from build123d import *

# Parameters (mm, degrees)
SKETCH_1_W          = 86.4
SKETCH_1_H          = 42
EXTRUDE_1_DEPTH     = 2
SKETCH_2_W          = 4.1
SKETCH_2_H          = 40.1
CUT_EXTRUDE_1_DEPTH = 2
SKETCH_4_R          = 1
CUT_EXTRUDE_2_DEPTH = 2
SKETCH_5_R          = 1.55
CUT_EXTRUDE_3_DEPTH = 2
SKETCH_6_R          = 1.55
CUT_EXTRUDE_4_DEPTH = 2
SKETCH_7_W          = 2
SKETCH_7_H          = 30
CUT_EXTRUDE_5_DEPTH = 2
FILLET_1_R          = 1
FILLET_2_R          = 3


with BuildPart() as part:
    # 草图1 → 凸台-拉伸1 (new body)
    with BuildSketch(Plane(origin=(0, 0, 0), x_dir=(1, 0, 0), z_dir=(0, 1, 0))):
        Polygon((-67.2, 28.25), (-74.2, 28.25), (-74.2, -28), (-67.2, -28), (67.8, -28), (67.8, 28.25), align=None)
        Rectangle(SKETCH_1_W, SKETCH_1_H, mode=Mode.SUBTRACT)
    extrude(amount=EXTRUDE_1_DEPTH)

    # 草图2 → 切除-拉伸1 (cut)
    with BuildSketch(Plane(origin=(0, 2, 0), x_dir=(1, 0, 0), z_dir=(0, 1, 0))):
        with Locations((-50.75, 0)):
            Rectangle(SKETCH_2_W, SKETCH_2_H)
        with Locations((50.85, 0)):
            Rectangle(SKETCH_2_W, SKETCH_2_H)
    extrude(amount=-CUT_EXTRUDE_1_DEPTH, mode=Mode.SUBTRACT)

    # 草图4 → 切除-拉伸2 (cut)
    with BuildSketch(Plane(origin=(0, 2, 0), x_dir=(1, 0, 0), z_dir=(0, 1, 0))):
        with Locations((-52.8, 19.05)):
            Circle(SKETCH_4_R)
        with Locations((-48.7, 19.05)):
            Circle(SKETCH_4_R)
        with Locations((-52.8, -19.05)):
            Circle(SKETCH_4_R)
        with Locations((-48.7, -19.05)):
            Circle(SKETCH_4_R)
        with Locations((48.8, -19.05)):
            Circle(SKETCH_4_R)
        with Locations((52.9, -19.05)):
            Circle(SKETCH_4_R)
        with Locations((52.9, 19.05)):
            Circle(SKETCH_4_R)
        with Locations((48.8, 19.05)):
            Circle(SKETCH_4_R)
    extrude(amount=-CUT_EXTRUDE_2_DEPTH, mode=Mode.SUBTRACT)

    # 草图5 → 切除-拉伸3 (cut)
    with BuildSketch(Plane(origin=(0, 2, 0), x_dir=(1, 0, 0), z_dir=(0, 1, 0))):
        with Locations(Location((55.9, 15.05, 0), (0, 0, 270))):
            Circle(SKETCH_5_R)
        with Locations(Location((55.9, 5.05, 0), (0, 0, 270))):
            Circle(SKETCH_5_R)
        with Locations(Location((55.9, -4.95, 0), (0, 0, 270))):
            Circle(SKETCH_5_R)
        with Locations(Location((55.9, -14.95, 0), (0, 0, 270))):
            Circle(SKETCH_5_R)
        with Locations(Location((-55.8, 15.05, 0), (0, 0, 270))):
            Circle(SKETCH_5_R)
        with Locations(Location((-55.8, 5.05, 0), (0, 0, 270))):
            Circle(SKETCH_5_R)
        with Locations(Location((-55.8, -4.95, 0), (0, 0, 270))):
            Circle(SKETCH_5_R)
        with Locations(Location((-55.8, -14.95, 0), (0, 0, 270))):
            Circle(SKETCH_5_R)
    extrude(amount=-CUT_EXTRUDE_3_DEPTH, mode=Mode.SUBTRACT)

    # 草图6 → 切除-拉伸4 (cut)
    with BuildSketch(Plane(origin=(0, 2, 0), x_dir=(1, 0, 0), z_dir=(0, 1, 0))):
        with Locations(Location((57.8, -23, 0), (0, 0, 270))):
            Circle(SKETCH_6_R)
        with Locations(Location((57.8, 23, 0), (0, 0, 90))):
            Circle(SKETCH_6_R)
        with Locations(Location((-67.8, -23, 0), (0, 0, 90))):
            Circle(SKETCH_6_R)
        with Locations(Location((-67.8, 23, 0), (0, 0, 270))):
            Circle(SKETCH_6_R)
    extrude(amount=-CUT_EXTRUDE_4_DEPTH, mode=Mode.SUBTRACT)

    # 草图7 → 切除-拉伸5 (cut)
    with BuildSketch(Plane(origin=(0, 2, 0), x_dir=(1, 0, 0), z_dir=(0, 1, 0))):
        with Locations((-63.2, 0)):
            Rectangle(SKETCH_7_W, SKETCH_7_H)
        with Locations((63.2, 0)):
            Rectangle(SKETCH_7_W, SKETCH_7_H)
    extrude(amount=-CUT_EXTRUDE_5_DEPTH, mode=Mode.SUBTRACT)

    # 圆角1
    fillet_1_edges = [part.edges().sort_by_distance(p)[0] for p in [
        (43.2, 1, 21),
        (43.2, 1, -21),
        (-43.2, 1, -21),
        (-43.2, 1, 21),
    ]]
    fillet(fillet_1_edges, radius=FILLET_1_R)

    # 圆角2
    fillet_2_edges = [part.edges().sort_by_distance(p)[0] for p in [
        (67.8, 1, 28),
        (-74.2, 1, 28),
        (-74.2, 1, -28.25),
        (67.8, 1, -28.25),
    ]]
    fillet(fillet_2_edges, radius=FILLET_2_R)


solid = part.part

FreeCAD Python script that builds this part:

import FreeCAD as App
import Part
import Sketcher
from FreeCAD import Vector


def edges_at(feature, points):
    """Names of the edges that pass closest to the given points."""
    edges = feature.Shape.Edges
    near = lambda p: min(range(len(edges)), key=lambda i: edges[i].distToShape(Part.Vertex(*p))[0])
    return sorted({f"Edge{near(p) + 1}" for p in points})

doc = App.newDocument("Part")
body = doc.addObject("PartDesign::Body", "Body")

# Sketch on XZ plane
sketch1 = doc.addObject("Sketcher::SketchObject", "Sketch")
body.addObject(sketch1)
sketch1.AttachmentSupport = (doc.XZ_Plane, [""])
sketch1.MapMode = "FlatFace"
sketch1.addGeometry([
    Part.LineSegment(Vector(-74, -28, 0), Vector(-74, 28, 0)),  # 0
    Part.LineSegment(Vector(-74, 28, 0), Vector(68, 28, 0)),  # 1
    Part.LineSegment(Vector(68, 28, 0), Vector(68, -28, 0)),  # 2
    Part.LineSegment(Vector(68, -28, 0), Vector(-74, -28, 0)),  # 3
    Part.LineSegment(Vector(43, 21, 0), Vector(-43, 21, 0)),  # 4
    Part.LineSegment(Vector(-43, 21, 0), Vector(-43, -21, 0)),  # 5
    Part.LineSegment(Vector(-43, -21, 0), Vector(43, -21, 0)),  # 6
    Part.LineSegment(Vector(43, -21, 0), Vector(43, 21, 0)),  # 7
], False)
sketch1.addConstraint([
    Sketcher.Constraint("Coincident", 0, 2, 1, 1),
    Sketcher.Constraint("Coincident", 1, 2, 2, 1),
    Sketcher.Constraint("Coincident", 2, 2, 3, 1),
    Sketcher.Constraint("Coincident", 3, 2, 0, 1),
    Sketcher.Constraint("Coincident", 4, 2, 5, 1),
    Sketcher.Constraint("Coincident", 5, 2, 6, 1),
    Sketcher.Constraint("Coincident", 6, 2, 7, 1),
    Sketcher.Constraint("Coincident", 7, 2, 4, 1),
    Sketcher.Constraint("Vertical", 0),
    Sketcher.Constraint("Horizontal", 1),
    Sketcher.Constraint("Vertical", 2),
    Sketcher.Constraint("Horizontal", 3),
    Sketcher.Constraint("Horizontal", 4),
    Sketcher.Constraint("Vertical", 5),
    Sketcher.Constraint("Horizontal", 6),
    Sketcher.Constraint("Vertical", 7),
    Sketcher.Constraint("Symmetric", 4, 2, 6, 2, -1, 1),
    Sketcher.Constraint("DistanceX", 1, 1, 1, 2, 142.0),
    Sketcher.Constraint("DistanceY", 5, 2, 5, 1, 42.0),
    Sketcher.Constraint("DistanceX", 4, 2, 4, 1, 86.4),
    Sketcher.Constraint("DistanceY", -1, 1, 0, 2, 28.0),
    Sketcher.Constraint("DistanceX", 0, 2, 4, 2, 31.0),
    Sketcher.Constraint("DistanceY", 0, 1, 0, 2, 56.25),
])
pad1 = doc.addObject("PartDesign::Pad", "Pad")
body.addObject(pad1)
pad1.Profile = sketch1
pad1.Length = 2
pad1.Reversed = True

# Sketch on XZ plane
sketch2 = doc.addObject("Sketcher::SketchObject", "Sketch001")
body.addObject(sketch2)
sketch2.AttachmentSupport = (doc.XZ_Plane, [""])
sketch2.MapMode = "FlatFace"
sketch2.AttachmentOffset = App.Placement(Vector(0, 0, -2), App.Rotation())
sketch2.addGeometry([
    Part.LineSegment(Vector(-52.8, -20.1, 0), Vector(-52.8, 20.1, 0)),  # 0
    Part.LineSegment(Vector(-52.8, 20.1, 0), Vector(-48.7, 20.1, 0)),  # 1
    Part.LineSegment(Vector(-48.7, 20.1, 0), Vector(-48.7, -20.1, 0)),  # 2
    Part.LineSegment(Vector(-48.7, -20.1, 0), Vector(-52.8, -20.1, 0)),  # 3
    Part.LineSegment(Vector(48.8, -20.1, 0), Vector(48.8, 20.1, 0)),  # 4
    Part.LineSegment(Vector(48.8, 20.1, 0), Vector(52.9, 20.1, 0)),  # 5
    Part.LineSegment(Vector(52.9, 20.1, 0), Vector(52.9, -20.1, 0)),  # 6
    Part.LineSegment(Vector(52.9, -20.1, 0), Vector(48.8, -20.1, 0)),  # 7
], False)
sketch2.addConstraint([
    Sketcher.Constraint("Coincident", 0, 2, 1, 1),
    Sketcher.Constraint("Coincident", 1, 2, 2, 1),
    Sketcher.Constraint("Coincident", 2, 2, 3, 1),
    Sketcher.Constraint("Coincident", 3, 2, 0, 1),
    Sketcher.Constraint("Coincident", 4, 2, 5, 1),
    Sketcher.Constraint("Coincident", 5, 2, 6, 1),
    Sketcher.Constraint("Coincident", 6, 2, 7, 1),
    Sketcher.Constraint("Coincident", 7, 2, 4, 1),
    Sketcher.Constraint("Vertical", 0),
    Sketcher.Constraint("Horizontal", 1),
    Sketcher.Constraint("Vertical", 2),
    Sketcher.Constraint("Horizontal", 3),
    Sketcher.Constraint("Vertical", 4),
    Sketcher.Constraint("Horizontal", 5),
    Sketcher.Constraint("Vertical", 6),
    Sketcher.Constraint("Horizontal", 7),
    Sketcher.Constraint("Horizontal", 1, 2, 4, 2),
    Sketcher.Constraint("Horizontal", 3, 2, 6, 2),
    Sketcher.Constraint("Equal", 3, 5),
    Sketcher.Constraint("DistanceX", 1, 1, 1, 2, 4.1),
    Sketcher.Constraint("DistanceY", 0, 1, 0, 2, 40.1),
    Sketcher.Constraint("DistanceX", 0, 2, -1, 1, 52.8),
    Sketcher.Constraint("DistanceX", -1, 1, 4, 2, 48.8),
    Sketcher.Constraint("DistanceY", -1, 1, 0, 2, 20.05),
])
pocket1 = doc.addObject("PartDesign::Pocket", "Pocket")
body.addObject(pocket1)
pocket1.Profile = sketch2
pocket1.Length = 2
pocket1.Reversed = True

# Sketch on XZ plane
sketch3 = doc.addObject("Sketcher::SketchObject", "Sketch002")
body.addObject(sketch3)
sketch3.AttachmentSupport = (doc.XZ_Plane, [""])
sketch3.MapMode = "FlatFace"
sketch3.AttachmentOffset = App.Placement(Vector(0, 0, -2), App.Rotation())
sketch3.addGeometry([
    Part.Circle(Vector(-52.8, -19.1, 0), Vector(0, 0, 1), 1),  # 0
    Part.Circle(Vector(-48.7, -19.1, 0), Vector(0, 0, 1), 1),  # 1
    Part.Circle(Vector(-52.8, 19.1, 0), Vector(0, 0, 1), 1),  # 2
    Part.Circle(Vector(-48.7, 19.1, 0), Vector(0, 0, 1), 1),  # 3
    Part.Circle(Vector(48.8, 19.1, 0), Vector(0, 0, 1), 1),  # 4
    Part.Circle(Vector(52.9, 19.1, 0), Vector(0, 0, 1), 1),  # 5
    Part.Circle(Vector(52.9, -19.1, 0), Vector(0, 0, 1), 1),  # 6
    Part.Circle(Vector(48.8, -19.1, 0), Vector(0, 0, 1), 1),  # 7
], False)
sketch3.addConstraint([
    Sketcher.Constraint("Equal", 0, 1),
    Sketcher.Constraint("Equal", 1, 2),
    Sketcher.Constraint("Equal", 2, 3),
    Sketcher.Constraint("Equal", 3, 4),
    Sketcher.Constraint("Equal", 4, 5),
    Sketcher.Constraint("Equal", 5, 6),
    Sketcher.Constraint("Equal", 6, 7),
    Sketcher.Constraint("Symmetric", 0, 3, 2, 3, -1),
    Sketcher.Constraint("Symmetric", 1, 3, 3, 3, -1),
    Sketcher.Constraint("Symmetric", 5, 3, 6, 3, -1),
    Sketcher.Constraint("Symmetric", 4, 3, 7, 3, -1),
    Sketcher.Constraint("Horizontal", 0, 3, 1, 3),
    Sketcher.Constraint("Horizontal", 3, 3, 4, 3),
    Sketcher.Constraint("Horizontal", 4, 3, 5, 3),
    Sketcher.Constraint("Diameter", 0, 2.0),
    Sketcher.Constraint("DistanceX", 0, 3, -1, 1, 52.8),
    Sketcher.Constraint("DistanceX", 1, 3, -1, 1, 48.7),
    Sketcher.Constraint("DistanceX", -1, 1, 4, 3, 48.8),
    Sketcher.Constraint("DistanceX", -1, 1, 5, 3, 52.9),
    Sketcher.Constraint("DistanceY", 0, 3, 2, 3, 38.1),
])
pocket2 = doc.addObject("PartDesign::Pocket", "Pocket001")
body.addObject(pocket2)
pocket2.Profile = sketch3
pocket2.Length = 2
pocket2.Reversed = True

# Sketch on XZ plane
sketch4 = doc.addObject("Sketcher::SketchObject", "Sketch003")
body.addObject(sketch4)
sketch4.AttachmentSupport = (doc.XZ_Plane, [""])
sketch4.MapMode = "FlatFace"
sketch4.AttachmentOffset = App.Placement(Vector(0, 0, -2), App.Rotation())
sketch4.addGeometry([
    Part.Circle(Vector(55.9, -15.1, 0), Vector(0, 0, 1), 1.6),  # 0
    Part.Circle(Vector(55.9, -5, 0), Vector(0, 0, 1), 1.6),  # 1
    Part.Circle(Vector(55.9, 5, 0), Vector(0, 0, 1), 1.6),  # 2
    Part.Circle(Vector(55.9, 14.9, 0), Vector(0, 0, 1), 1.6),  # 3
    Part.Circle(Vector(-55.8, -15.1, 0), Vector(0, 0, 1), 1.6),  # 4
    Part.Circle(Vector(-55.8, -5, 0), Vector(0, 0, 1), 1.6),  # 5
    Part.Circle(Vector(-55.8, 5, 0), Vector(0, 0, 1), 1.6),  # 6
    Part.Circle(Vector(-55.8, 14.9, 0), Vector(0, 0, 1), 1.6),  # 7
], False)
sketch4.addConstraint([
    Sketcher.Constraint("Equal", 0, 1),
    Sketcher.Constraint("Equal", 1, 2),
    Sketcher.Constraint("Equal", 2, 3),
    Sketcher.Constraint("Equal", 3, 4),
    Sketcher.Constraint("Equal", 4, 5),
    Sketcher.Constraint("Equal", 5, 6),
    Sketcher.Constraint("Equal", 6, 7),
    Sketcher.Constraint("Horizontal", 0, 3, 4, 3),
    Sketcher.Constraint("Horizontal", 1, 3, 5, 3),
    Sketcher.Constraint("Horizontal", 2, 3, 6, 3),
    Sketcher.Constraint("Horizontal", 3, 3, 7, 3),
    Sketcher.Constraint("Vertical", 0, 3, 1, 3),
    Sketcher.Constraint("Vertical", 1, 3, 2, 3),
    Sketcher.Constraint("Vertical", 2, 3, 3, 3),
    Sketcher.Constraint("Vertical", 4, 3, 5, 3),
    Sketcher.Constraint("Vertical", 5, 3, 6, 3),
    Sketcher.Constraint("Vertical", 6, 3, 7, 3),
    Sketcher.Constraint("Diameter", 0, 3.1),
    Sketcher.Constraint("DistanceY", 0, 3, 1, 3, 10.0),
    Sketcher.Constraint("DistanceY", 1, 3, 2, 3, 10.0),
    Sketcher.Constraint("DistanceY", 2, 3, 3, 3, 10.0),
    Sketcher.Constraint("DistanceX", -1, 1, 0, 3, 55.9),
    Sketcher.Constraint("DistanceX", 4, 3, -1, 1, 55.8),
    Sketcher.Constraint("DistanceY", 0, 3, -1, 1, 15.05),
])
pocket3 = doc.addObject("PartDesign::Pocket", "Pocket002")
body.addObject(pocket3)
pocket3.Profile = sketch4
pocket3.Length = 2
pocket3.Reversed = True

# Sketch on XZ plane
sketch5 = doc.addObject("Sketcher::SketchObject", "Sketch004")
body.addObject(sketch5)
sketch5.AttachmentSupport = (doc.XZ_Plane, [""])
sketch5.MapMode = "FlatFace"
sketch5.AttachmentOffset = App.Placement(Vector(0, 0, -2), App.Rotation())
sketch5.addGeometry([
    Part.Circle(Vector(57.8, 23, 0), Vector(0, 0, 1), 1.6),
    Part.Circle(Vector(57.8, -23, 0), Vector(0, 0, 1), 1.6),
    Part.Circle(Vector(-67.8, 23, 0), Vector(0, 0, 1), 1.6),
    Part.Circle(Vector(-67.8, -23, 0), Vector(0, 0, 1), 1.6),
], False)
sketch5.addConstraint([
    Sketcher.Constraint("Equal", 0, 1),
    Sketcher.Constraint("Equal", 1, 2),
    Sketcher.Constraint("Equal", 2, 3),
    Sketcher.Constraint("Symmetric", 0, 3, 1, 3, -1),
    Sketcher.Constraint("Symmetric", 2, 3, 3, 3, -1),
    Sketcher.Constraint("Horizontal", 0, 3, 2, 3),
    Sketcher.Constraint("Diameter", 0, 3.1),
    Sketcher.Constraint("DistanceY", -1, 1, 0, 3, 23.0),
    Sketcher.Constraint("DistanceX", -1, 1, 0, 3, 57.8),
    Sketcher.Constraint("DistanceX", 2, 3, -1, 1, 67.8),
])
pocket4 = doc.addObject("PartDesign::Pocket", "Pocket003")
body.addObject(pocket4)
pocket4.Profile = sketch5
pocket4.Length = 2
pocket4.Reversed = True

# Sketch on XZ plane
sketch6 = doc.addObject("Sketcher::SketchObject", "Sketch005")
body.addObject(sketch6)
sketch6.AttachmentSupport = (doc.XZ_Plane, [""])
sketch6.MapMode = "FlatFace"
sketch6.AttachmentOffset = App.Placement(Vector(0, 0, -2), App.Rotation())
sketch6.addGeometry([
    Part.LineSegment(Vector(-64.2, -15, 0), Vector(-64.2, 15, 0)),  # 0
    Part.LineSegment(Vector(-64.2, 15, 0), Vector(-62.2, 15, 0)),  # 1
    Part.LineSegment(Vector(-62.2, 15, 0), Vector(-62.2, -15, 0)),  # 2
    Part.LineSegment(Vector(-62.2, -15, 0), Vector(-64.2, -15, 0)),  # 3
    Part.LineSegment(Vector(62.2, -15, 0), Vector(62.2, 15, 0)),  # 4
    Part.LineSegment(Vector(62.2, 15, 0), Vector(64.2, 15, 0)),  # 5
    Part.LineSegment(Vector(64.2, 15, 0), Vector(64.2, -15, 0)),  # 6
    Part.LineSegment(Vector(64.2, -15, 0), Vector(62.2, -15, 0)),  # 7
], False)
sketch6.addConstraint([
    Sketcher.Constraint("Coincident", 0, 2, 1, 1),
    Sketcher.Constraint("Coincident", 1, 2, 2, 1),
    Sketcher.Constraint("Coincident", 2, 2, 3, 1),
    Sketcher.Constraint("Coincident", 3, 2, 0, 1),
    Sketcher.Constraint("Coincident", 4, 2, 5, 1),
    Sketcher.Constraint("Coincident", 5, 2, 6, 1),
    Sketcher.Constraint("Coincident", 6, 2, 7, 1),
    Sketcher.Constraint("Coincident", 7, 2, 4, 1),
    Sketcher.Constraint("Vertical", 0),
    Sketcher.Constraint("Horizontal", 1),
    Sketcher.Constraint("Vertical", 2),
    Sketcher.Constraint("Horizontal", 3),
    Sketcher.Constraint("Vertical", 4),
    Sketcher.Constraint("Horizontal", 5),
    Sketcher.Constraint("Vertical", 6),
    Sketcher.Constraint("Horizontal", 7),
    Sketcher.Constraint("Symmetric", 2, 2, 4, 2, -1, 1),
    Sketcher.Constraint("Symmetric", 0, 2, 6, 2, -1, 1),
    Sketcher.Constraint("Horizontal", 1, 2, 4, 2),
    Sketcher.Constraint("DistanceX", 1, 1, 1, 2, 2.0),
    Sketcher.Constraint("DistanceY", 0, 1, 0, 2, 30.0),
    Sketcher.Constraint("DistanceX", 0, 2, -1, 1, 64.2),
])
pocket5 = doc.addObject("PartDesign::Pocket", "Pocket004")
body.addObject(pocket5)
pocket5.Profile = sketch6
pocket5.Length = 2
pocket5.Reversed = True
doc.recompute()

fillet = doc.addObject("PartDesign::Fillet", "Fillet")
body.addObject(fillet)
fillet.Base = (pocket5, edges_at(pocket5, [
    (43.2, 1, 21),
    (43.2, 1, -21),
    (-43.2, 1, -21),
    (-43.2, 1, 21),
]))
fillet.Radius = 1
doc.recompute()

fillet2 = doc.addObject("PartDesign::Fillet", "Fillet001")
body.addObject(fillet2)
fillet2.Base = (fillet, edges_at(fillet, [
    (67.8, 1, 28),
    (-74.2, 1, 28),
    (-74.2, 1, -28.25),
    (67.8, 1, -28.25),
]))
fillet2.Radius = 3

doc.recompute()
